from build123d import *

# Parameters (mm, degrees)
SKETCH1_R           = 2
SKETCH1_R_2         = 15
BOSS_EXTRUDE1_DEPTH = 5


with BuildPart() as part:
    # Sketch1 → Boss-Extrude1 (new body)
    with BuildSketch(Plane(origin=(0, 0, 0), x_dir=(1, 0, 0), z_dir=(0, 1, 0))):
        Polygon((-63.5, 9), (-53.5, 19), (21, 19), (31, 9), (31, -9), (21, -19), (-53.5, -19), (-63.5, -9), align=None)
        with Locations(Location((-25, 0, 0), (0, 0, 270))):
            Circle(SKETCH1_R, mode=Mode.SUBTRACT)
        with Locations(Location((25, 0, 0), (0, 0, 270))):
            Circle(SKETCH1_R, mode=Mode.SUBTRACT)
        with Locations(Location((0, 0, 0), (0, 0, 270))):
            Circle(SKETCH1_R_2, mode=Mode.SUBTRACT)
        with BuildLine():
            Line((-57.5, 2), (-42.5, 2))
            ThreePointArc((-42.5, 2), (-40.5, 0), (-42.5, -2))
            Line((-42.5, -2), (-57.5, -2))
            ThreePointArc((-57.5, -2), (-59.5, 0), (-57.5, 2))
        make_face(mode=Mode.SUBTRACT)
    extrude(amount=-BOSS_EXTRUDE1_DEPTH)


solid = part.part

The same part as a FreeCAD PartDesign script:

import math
import FreeCAD as App
import Part
import Sketcher

V = App.Vector
Q = App.Units.Quantity


def add_polygon(sketch, points):
    """Adds a closed chain of lines whose ends are joined by coincident constraints."""
    first, n = sketch.GeometryCount, len(points)
    for a, b in zip(points, points[1:] + points[:1]):
        sketch.addGeometry(Part.LineSegment(App.Vector(*a, 0), App.Vector(*b, 0)), False)
    for i in range(n):
        sketch.addConstraint(Sketcher.Constraint("Coincident", first + i, 2, first + (i + 1) % n, 1))

doc = App.newDocument("Part")
body = doc.addObject("PartDesign::Body", "Body")

# Sketch on XZ plane
sketch1 = doc.addObject("Sketcher::SketchObject", "Sketch")
body.addObject(sketch1)
sketch1.AttachmentSupport = (doc.XZ_Plane, [""])
sketch1.MapMode = "FlatFace"
add_polygon(sketch1, [(-53.5, -19), (-63.5, -9), (-63.5, 9), (-53.5, 19), (21, 19), (31, 9), (31, -9), (21, -19)])  # lines 0-7
sketch1.addGeometry(Part.Circle(V(25, 0, 0), V(0, 0, 1), 2), False)  # 8
sketch1.addGeometry(Part.Circle(V(0, 0, 0), V(0, 0, 1), 15), False)  # 9
sketch1.addGeometry(Part.Circle(V(-25, 0, 0), V(0, 0, 1), 2), False)  # 10
sketch1.addGeometry(Part.LineSegment(V(-57.5, -2, 0), V(-42.5, -2, 0)), False)  # 11
sketch1.addGeometry(Part.ArcOfCircle(Part.Circle(V(-42.5, 0, 0), V(0, 0, 1), 2), math.radians(-90), math.radians(90)), False)  # 12
sketch1.addGeometry(Part.LineSegment(V(-42.5, 2, 0), V(-57.5, 2, 0)), False)  # 13
sketch1.addGeometry(Part.ArcOfCircle(Part.Circle(V(-57.5, 0, 0), V(0, 0, 1), 2), math.radians(90), math.radians(270)), False)  # 14
sketch1.addConstraint([
    Sketcher.Constraint("Tangent", 11, 2, 12, 1),
    Sketcher.Constraint("Tangent", 12, 2, 13, 1),
    Sketcher.Constraint("Tangent", 13, 2, 14, 1),
    Sketcher.Constraint("Tangent", 14, 2, 11, 1),
    Sketcher.Constraint("Vertical", 1),
    Sketcher.Constraint("Horizontal", 3),
    Sketcher.Constraint("Vertical", 5),
    Sketcher.Constraint("Horizontal", 7),
    Sketcher.Constraint("Horizontal", 11),
    Sketcher.Constraint("Horizontal", 13),
    Sketcher.Constraint("Coincident", 9, 3, -1, 1),
    Sketcher.Constraint("Equal", 8, 10),
    Sketcher.Constraint("Equal", 10, 12),
    Sketcher.Constraint("Symmetric", 8, 3, 10, 3, -1, 1),
    Sketcher.Constraint("Symmetric", 3, 2, 6, 2, -1),
    Sketcher.Constraint("PointOnObject", 8, 3, -1),
    Sketcher.Constraint("PointOnObject", 12, 3, -1),
    Sketcher.Constraint("Perpendicular", 0, 2),
    Sketcher.Constraint("Perpendicular", 2, 4),
    Sketcher.Constraint("Perpendicular", 4, 6),
    Sketcher.Constraint("Horizontal", 1, 2, 4, 2),
    Sketcher.Constraint("Horizontal", 0, 2, 5, 2),
    Sketcher.Constraint("Vertical", 2, 2, 7, 2),
    Sketcher.Constraint("Diameter", 8, Q("4 mm")),
    Sketcher.Constraint("Diameter", 9, Q("30 mm")),
    Sketcher.Constraint("DistanceX", 11, 1, 11, 2, Q("15 mm")),
    Sketcher.Constraint("DistanceY", 1, 1, 1, 2, Q("18 mm")),
    Sketcher.Constraint("DistanceX", 3, 1, 3, 2, Q("74.5 mm")),
    Sketcher.Constraint("DistanceX", -1, 1, 8, 3, Q("25 mm")),
    Sketcher.Constraint("DistanceY", -1, 1, 2, 2, Q("19 mm")),
    Sketcher.Constraint("DistanceX", -1, 1, 3, 2, Q("21 mm")),
    Sketcher.Constraint("DistanceX", 0, 2, 14, 3, Q("6 mm")),
])
pad1 = doc.addObject("PartDesign::Pad", "Pad")
body.addObject(pad1)
pad1.Profile = sketch1
pad1.Length = 5

doc.recompute()
